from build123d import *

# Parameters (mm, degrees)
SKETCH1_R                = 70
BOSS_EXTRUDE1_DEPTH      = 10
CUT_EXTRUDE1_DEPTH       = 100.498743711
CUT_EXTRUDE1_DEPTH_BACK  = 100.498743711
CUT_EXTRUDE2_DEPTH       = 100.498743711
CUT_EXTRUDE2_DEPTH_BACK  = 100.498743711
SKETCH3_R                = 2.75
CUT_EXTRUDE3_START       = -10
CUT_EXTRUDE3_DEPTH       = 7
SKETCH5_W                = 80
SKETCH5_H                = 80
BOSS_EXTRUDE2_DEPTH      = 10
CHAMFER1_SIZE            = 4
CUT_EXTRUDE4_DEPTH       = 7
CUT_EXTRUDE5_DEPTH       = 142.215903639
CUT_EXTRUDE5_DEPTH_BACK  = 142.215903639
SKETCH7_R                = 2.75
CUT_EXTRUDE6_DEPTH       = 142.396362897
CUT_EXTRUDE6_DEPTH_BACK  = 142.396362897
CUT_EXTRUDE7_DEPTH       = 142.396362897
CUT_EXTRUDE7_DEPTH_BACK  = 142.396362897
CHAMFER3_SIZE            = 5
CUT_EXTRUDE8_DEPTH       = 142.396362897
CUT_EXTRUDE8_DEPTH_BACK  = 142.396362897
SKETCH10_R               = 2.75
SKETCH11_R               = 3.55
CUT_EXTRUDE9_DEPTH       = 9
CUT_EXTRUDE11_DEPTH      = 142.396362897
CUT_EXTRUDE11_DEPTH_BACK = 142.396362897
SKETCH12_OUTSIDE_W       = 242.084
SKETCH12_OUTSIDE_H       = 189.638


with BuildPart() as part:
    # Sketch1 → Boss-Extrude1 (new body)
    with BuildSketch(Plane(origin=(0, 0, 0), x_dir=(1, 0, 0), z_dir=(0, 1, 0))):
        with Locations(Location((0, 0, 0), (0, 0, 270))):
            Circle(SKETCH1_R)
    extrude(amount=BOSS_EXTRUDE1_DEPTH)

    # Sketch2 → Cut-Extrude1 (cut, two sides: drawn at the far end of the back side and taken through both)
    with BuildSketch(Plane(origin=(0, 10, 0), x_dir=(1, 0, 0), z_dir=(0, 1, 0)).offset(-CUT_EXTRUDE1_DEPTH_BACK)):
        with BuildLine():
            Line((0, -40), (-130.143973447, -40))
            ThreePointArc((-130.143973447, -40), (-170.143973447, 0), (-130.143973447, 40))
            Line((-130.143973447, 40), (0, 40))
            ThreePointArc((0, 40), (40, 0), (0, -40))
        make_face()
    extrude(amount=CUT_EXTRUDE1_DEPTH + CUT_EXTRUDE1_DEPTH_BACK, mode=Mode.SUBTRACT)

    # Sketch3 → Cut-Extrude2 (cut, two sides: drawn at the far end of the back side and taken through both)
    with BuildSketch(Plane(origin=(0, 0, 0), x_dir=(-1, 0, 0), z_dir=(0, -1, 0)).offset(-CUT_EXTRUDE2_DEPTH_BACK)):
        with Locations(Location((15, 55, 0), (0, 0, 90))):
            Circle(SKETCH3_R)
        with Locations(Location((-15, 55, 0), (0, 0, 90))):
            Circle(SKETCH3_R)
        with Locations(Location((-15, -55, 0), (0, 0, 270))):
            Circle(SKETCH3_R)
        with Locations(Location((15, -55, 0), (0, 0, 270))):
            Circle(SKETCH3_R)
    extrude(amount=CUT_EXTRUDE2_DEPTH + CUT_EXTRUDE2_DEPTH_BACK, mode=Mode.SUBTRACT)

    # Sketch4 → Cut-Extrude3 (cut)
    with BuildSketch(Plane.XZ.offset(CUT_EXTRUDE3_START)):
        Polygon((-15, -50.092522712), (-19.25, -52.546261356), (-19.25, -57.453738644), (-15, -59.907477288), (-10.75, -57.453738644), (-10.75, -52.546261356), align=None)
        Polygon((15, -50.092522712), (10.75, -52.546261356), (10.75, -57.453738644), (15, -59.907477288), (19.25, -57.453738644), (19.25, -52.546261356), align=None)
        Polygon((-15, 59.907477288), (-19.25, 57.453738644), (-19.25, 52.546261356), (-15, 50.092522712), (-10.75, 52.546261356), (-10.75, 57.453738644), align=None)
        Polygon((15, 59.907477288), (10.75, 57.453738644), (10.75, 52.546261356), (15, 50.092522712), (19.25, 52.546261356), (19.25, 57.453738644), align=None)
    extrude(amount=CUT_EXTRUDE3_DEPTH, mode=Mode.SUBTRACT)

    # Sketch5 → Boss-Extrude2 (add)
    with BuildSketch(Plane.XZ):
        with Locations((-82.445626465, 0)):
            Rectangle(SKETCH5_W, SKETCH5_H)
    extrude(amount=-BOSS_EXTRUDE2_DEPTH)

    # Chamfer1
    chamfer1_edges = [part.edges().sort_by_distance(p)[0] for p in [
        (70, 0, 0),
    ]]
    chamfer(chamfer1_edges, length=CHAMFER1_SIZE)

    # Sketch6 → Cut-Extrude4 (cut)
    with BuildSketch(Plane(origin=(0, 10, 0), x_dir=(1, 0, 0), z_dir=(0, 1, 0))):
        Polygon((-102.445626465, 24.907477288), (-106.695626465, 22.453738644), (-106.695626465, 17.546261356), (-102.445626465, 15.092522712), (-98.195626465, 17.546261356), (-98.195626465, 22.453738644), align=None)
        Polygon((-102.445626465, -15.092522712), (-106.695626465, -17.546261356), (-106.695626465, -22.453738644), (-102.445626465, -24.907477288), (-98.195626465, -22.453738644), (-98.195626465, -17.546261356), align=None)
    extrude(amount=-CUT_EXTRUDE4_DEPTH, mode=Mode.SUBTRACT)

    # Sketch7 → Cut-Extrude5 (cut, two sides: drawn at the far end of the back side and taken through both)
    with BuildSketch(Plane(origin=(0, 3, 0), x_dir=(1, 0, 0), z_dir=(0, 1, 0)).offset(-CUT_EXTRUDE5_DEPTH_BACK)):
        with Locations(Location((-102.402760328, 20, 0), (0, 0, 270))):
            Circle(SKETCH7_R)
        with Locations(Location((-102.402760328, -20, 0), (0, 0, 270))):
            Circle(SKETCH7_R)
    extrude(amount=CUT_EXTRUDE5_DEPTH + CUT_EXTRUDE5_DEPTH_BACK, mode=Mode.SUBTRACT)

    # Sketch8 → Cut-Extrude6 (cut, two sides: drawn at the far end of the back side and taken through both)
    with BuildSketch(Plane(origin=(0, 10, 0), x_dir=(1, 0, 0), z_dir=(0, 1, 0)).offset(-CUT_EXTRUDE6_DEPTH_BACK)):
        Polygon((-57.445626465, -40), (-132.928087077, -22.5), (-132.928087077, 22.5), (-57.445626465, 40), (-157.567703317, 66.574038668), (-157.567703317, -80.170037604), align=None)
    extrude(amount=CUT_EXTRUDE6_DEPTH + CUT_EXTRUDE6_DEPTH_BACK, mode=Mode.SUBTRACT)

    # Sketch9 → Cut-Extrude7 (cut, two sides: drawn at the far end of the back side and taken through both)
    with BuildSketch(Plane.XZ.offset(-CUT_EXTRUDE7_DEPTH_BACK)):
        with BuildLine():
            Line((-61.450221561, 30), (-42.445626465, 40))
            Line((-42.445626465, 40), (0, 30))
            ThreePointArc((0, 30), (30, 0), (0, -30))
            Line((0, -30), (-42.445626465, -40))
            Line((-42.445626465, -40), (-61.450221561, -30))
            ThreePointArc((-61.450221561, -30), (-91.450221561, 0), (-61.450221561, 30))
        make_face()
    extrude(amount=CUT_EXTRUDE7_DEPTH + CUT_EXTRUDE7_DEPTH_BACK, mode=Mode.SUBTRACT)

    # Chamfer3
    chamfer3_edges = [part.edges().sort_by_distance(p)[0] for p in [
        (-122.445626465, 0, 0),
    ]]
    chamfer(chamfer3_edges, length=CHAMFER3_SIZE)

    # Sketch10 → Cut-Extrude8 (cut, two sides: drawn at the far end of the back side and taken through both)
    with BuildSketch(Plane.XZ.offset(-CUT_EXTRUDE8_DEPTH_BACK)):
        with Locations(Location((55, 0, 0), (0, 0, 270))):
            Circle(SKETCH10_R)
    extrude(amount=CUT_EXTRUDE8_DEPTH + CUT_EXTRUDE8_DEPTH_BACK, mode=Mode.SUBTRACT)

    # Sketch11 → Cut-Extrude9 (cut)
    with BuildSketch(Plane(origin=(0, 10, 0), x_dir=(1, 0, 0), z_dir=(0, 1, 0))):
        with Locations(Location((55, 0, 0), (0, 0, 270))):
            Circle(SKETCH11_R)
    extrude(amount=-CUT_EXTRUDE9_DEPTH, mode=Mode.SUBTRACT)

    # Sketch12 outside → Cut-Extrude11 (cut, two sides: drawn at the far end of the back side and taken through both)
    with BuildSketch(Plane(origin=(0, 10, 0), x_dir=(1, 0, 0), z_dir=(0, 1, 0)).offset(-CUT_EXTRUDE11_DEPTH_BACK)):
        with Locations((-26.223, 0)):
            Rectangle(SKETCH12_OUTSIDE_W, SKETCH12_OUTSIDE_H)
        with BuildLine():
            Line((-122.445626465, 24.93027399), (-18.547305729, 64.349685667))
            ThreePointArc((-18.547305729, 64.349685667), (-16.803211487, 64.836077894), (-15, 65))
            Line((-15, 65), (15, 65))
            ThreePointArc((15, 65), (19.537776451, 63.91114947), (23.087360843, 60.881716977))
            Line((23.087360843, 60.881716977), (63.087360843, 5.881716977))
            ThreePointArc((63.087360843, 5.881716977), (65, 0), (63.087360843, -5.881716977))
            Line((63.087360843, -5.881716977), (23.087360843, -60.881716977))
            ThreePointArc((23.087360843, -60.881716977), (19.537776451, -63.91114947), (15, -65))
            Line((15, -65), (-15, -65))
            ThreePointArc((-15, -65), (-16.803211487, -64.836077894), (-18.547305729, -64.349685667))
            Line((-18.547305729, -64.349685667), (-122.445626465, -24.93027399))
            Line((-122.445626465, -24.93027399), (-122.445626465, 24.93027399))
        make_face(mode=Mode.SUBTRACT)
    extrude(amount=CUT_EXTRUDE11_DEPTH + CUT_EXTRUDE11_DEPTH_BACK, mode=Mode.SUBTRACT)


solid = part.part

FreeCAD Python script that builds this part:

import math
import FreeCAD as App
import Part
import Sketcher
from FreeCAD import Vector
Q = App.Units.Quantity


def edges_at(feature, points):
    """Names of the edges that pass closest to the given points."""
    edges = feature.Shape.Edges
    near = lambda p: min(range(len(edges)), key=lambda i: edges[i].distToShape(Part.Vertex(*p))[0])
    return sorted({f"Edge{near(p) + 1}" for p in points})


def add_polygon(sketch, points):
    """Adds a closed chain of lines whose ends are joined by coincident constraints."""
    first, n = sketch.GeometryCount, len(points)
    for a, b in zip(points, points[1:] + points[:1]):
        sketch.addGeometry(Part.LineSegment(App.Vector(*a, 0), App.Vector(*b, 0)), False)
    for i in range(n):
        sketch.addConstraint(Sketcher.Constraint("Coincident", first + i, 2, first + (i + 1) % n, 1))

doc = App.newDocument("Part")
body = doc.addObject("PartDesign::Body", "Body")

sketch1 = body.newObject("Sketcher::SketchObject", "Sketch")
sketch1.AttachmentSupport = (doc.getObject("XZ_Plane"), [""])
sketch1.MapMode = "FlatFace"
sketch1.addGeometry(Part.Circle(Vector(0, 0, 0), Vector(0, 0, 1), 70), False)
sketch1.addConstraint([
    Sketcher.Constraint("Coincident", 0, 3, -1, 1),
    Sketcher.Constraint("Diameter", 0, Q("140 mm")),
])
pad1 = body.newObject("PartDesign::Pad", "Pad")
pad1.Profile = sketch1
pad1.Length = 10
pad1.Reversed = True

sketch2 = body.newObject("Sketcher::SketchObject", "Sketch001")
sketch2.AttachmentSupport = (doc.getObject("XZ_Plane"), [""])
sketch2.MapMode = "FlatFace"
sketch2.AttachmentOffset = App.Placement(Vector(0, 0, -10), App.Rotation())
sketch2.addGeometry([
    Part.LineSegment(Vector(-130.143973, 40, 0), Vector(0, 40, 0)),
    Part.ArcOfCircle(Part.Circle(Vector(0, 0, 0), Vector(0, 0, 1), 40), math.radians(-90), math.radians(90)),
    Part.LineSegment(Vector(0, -40, 0), Vector(-130.143973, -40, 0)),
    Part.ArcOfCircle(Part.Circle(Vector(-130.143973, 0, 0), Vector(0, 0, 1), 40), math.radians(90), math.radians(270)),
], False)
sketch2.addConstraint([
    Sketcher.Constraint("Tangent", 0, 2, 1, 2),
    Sketcher.Constraint("Tangent", 1, 1, 2, 1),
    Sketcher.Constraint("Tangent", 2, 2, 3, 2),
    Sketcher.Constraint("Tangent", 3, 1, 0, 1),
    Sketcher.Constraint("Horizontal", 0),
    Sketcher.Constraint("Horizontal", 2),
    Sketcher.Constraint("Coincident", 1, 3, -1, 1),
    Sketcher.Constraint("Radius", 1, Q("40 mm")),
    Sketcher.Constraint("DistanceX", 0, 1, 0, 2, Q("130.143973 mm")),
])
pocket1 = body.newObject("PartDesign::Pocket", "Pocket")
pocket1.Profile = sketch2
pocket1.Type = "ThroughAll"
pocket1.Midplane = True

sketch3 = body.newObject("Sketcher::SketchObject", "Sketch002")
sketch3.AttachmentSupport = (doc.getObject("XZ_Plane"), [""])
sketch3.MapMode = "FlatFace"
sketch3.addGeometry([
    Part.Circle(Vector(-15, -55, 0), Vector(0, 0, 1), 2.75),
    Part.Circle(Vector(15, -55, 0), Vector(0, 0, 1), 2.75),
    Part.Circle(Vector(15, 55, 0), Vector(0, 0, 1), 2.75),
    Part.Circle(Vector(-15, 55, 0), Vector(0, 0, 1), 2.75),
], False)
sketch3.addConstraint([
    Sketcher.Constraint("Equal", 0, 1),
    Sketcher.Constraint("Equal", 1, 2),
    Sketcher.Constraint("Equal", 2, 3),
    Sketcher.Constraint("Symmetric", 0, 3, 2, 3, -1, 1),
    Sketcher.Constraint("Symmetric", 1, 3, 3, 3, -1, 1),
    Sketcher.Constraint("Symmetric", 0, 3, 1, 3, -2),
    Sketcher.Constraint("Diameter", 0, Q("5.5 mm")),
    Sketcher.Constraint("DistanceX", 0, 3, -1, 1, Q("15 mm")),
    Sketcher.Constraint("DistanceY", 0, 3, -1, 1, Q("55 mm")),
])
pocket2 = body.newObject("PartDesign::Pocket", "Pocket001")
pocket2.Profile = sketch3
pocket2.Type = "ThroughAll"
pocket2.Midplane = True

sketch4 = body.newObject("Sketcher::SketchObject", "Sketch003")
sketch4.AttachmentSupport = (doc.getObject("XZ_Plane"), [""])
sketch4.MapMode = "FlatFace"
sketch4.AttachmentOffset = App.Placement(Vector(0, 0, -10), App.Rotation())
add_polygon(sketch4, [(-15, -50.092523), (-19.25, -52.546261), (-19.25, -57.453739), (-15, -59.907477), (-10.75, -57.453739), (-10.75, -52.546261)])
add_polygon(sketch4, [(15, -50.092523), (10.75, -52.546261), (10.75, -57.453739), (15, -59.907477), (19.25, -57.453739), (19.25, -52.546261)])
add_polygon(sketch4, [(-15, 59.907477), (-19.25, 57.453739), (-19.25, 52.546261), (-15, 50.092523), (-10.75, 52.546261), (-10.75, 57.453739)])
add_polygon(sketch4, [(15, 59.907477), (10.75, 57.453739), (10.75, 52.546261), (15, 50.092523), (19.25, 52.546261), (19.25, 57.453739)])
sketch4.addConstraint([
    Sketcher.Constraint("Vertical", 1),
    Sketcher.Constraint("Vertical", 4),
    Sketcher.Constraint("Vertical", 7),
    Sketcher.Constraint("Vertical", 10),
    Sketcher.Constraint("Vertical", 13),
    Sketcher.Constraint("Vertical", 16),
    Sketcher.Constraint("Vertical", 19),
    Sketcher.Constraint("Vertical", 22),
    Sketcher.Constraint("Symmetric", 9, 2, 12, 2, -1, 1),
    Sketcher.Constraint("Symmetric", 11, 2, 14, 2, -1, 1),
    Sketcher.Constraint("Symmetric", 6, 2, 15, 2, -1, 1),
    Sketcher.Constraint("Symmetric", 8, 2, 17, 2, -1, 1),
    Sketcher.Constraint("Symmetric", 3, 2, 18, 2, -1, 1),
    Sketcher.Constraint("Symmetric", 5, 2, 20, 2, -1, 1),
    Sketcher.Constraint("Symmetric", 0, 2, 21, 2, -1, 1),
    Sketcher.Constraint("Symmetric", 2, 2, 23, 2, -1, 1),
    Sketcher.Constraint("Symmetric", 4, 2, 6, 2, -2),
    Sketcher.Constraint("Symmetric", 2, 2, 8, 2, -2),
    Sketcher.Constraint("Symmetric", 1, 2, 9, 2, -2),
    Sketcher.Constraint("Symmetric", 5, 2, 11, 2, -2),
    Sketcher.Constraint("Parallel", 0, 3),
    Sketcher.Constraint("Parallel", 2, 5),
    Sketcher.Constraint("Parallel", 3, 6),
    Sketcher.Constraint("Parallel", 5, 8),
    Sketcher.Constraint("Parallel", 8, 11),
    Sketcher.Constraint("Parallel", 11, 14),
    Sketcher.Constraint("Parallel", 14, 17),
    Sketcher.Constraint("Parallel", 17, 20),
    Sketcher.Constraint("Parallel", 20, 23),
    Sketcher.Constraint("Horizontal", 1, 2, 3, 2),
    Sketcher.Constraint("Horizontal", 0, 2, 4, 2),
    Sketcher.Constraint("Angle", 0, Q("-150 deg")),
    Sketcher.Constraint("DistanceX", 2, 2, -1, 1, Q("15 mm")),
    Sketcher.Constraint("DistanceY", 0, 2, 12, 2, Q("110 mm")),
    Sketcher.Constraint("DistanceX", 1, 2, 3, 2, Q("8.5 mm")),
    Sketcher.Constraint("DistanceY", 1, 2, 1, 1, Q("4.907477 mm")),
])
pocket3 = body.newObject("PartDesign::Pocket", "Pocket002")
pocket3.Profile = sketch4
pocket3.Length = 7
pocket3.Reversed = True

sketch5 = body.newObject("Sketcher::SketchObject", "Sketch004")
sketch5.AttachmentSupport = (doc.getObject("XZ_Plane"), [""])
sketch5.MapMode = "FlatFace"
add_polygon(sketch5, [(-122.445626, 40), (-122.445626, -40), (-42.445626, -40), (-42.445626, 40)])
sketch5.addConstraint([
    Sketcher.Constraint("Vertical", 0),
    Sketcher.Constraint("Horizontal", 1),
    Sketcher.Constraint("Vertical", 2),
    Sketcher.Constraint("Horizontal", 3),
    Sketcher.Constraint("Equal", 3, 0),
    Sketcher.Constraint("DistanceX", 1, 1, 1, 2, Q("80 mm")),
    Sketcher.Constraint("DistanceY", 0, 2, -1, 1, Q("40 mm")),
    Sketcher.Constraint("DistanceX", 0, 2, -1, 1, Q("122.445626 mm")),
])
pad2 = body.newObject("PartDesign::Pad", "Pad001")
pad2.Profile = sketch5
pad2.Length = 10
pad2.Reversed = True
doc.recompute()

chamfer = body.newObject("PartDesign::Chamfer", "Chamfer")
chamfer.Base = (pad2, edges_at(pad2, [(70, 0, 0)]))
chamfer.Size = 4

sketch6 = body.newObject("Sketcher::SketchObject", "Sketch005")
sketch6.AttachmentSupport = (doc.getObject("XZ_Plane"), [""])
sketch6.MapMode = "FlatFace"
sketch6.AttachmentOffset = App.Placement(Vector(0, 0, -10), App.Rotation())
add_polygon(sketch6, [(-102.445626, -24.907477), (-106.695626, -22.453739), (-106.695626, -17.546261), (-102.445626, -15.092523), (-98.195626, -17.546261), (-98.195626, -22.453739)])
add_polygon(sketch6, [(-102.445626, 15.092523), (-106.695626, 17.546261), (-106.695626, 22.453739), (-102.445626, 24.907477), (-98.195626, 22.453739), (-98.195626, 17.546261)])
sketch6.addConstraint([
    Sketcher.Constraint("Vertical", 1),
    Sketcher.Constraint("Vertical", 4),
    Sketcher.Constraint("Vertical", 7),
    Sketcher.Constraint("Vertical", 10),
    Sketcher.Constraint("Symmetric", 1, 2, 6, 2, -1),
    Sketcher.Constraint("Symmetric", 5, 2, 8, 2, -1),
    Sketcher.Constraint("Symmetric", 4, 2, 9, 2, -1),
    Sketcher.Constraint("Symmetric", 2, 2, 11, 2, -1),
    Sketcher.Constraint("Parallel", 0, 3),
    Sketcher.Constraint("Parallel", 2, 5),
    Sketcher.Constraint("Parallel", 3, 6),
    Sketcher.Constraint("Parallel", 5, 8),
    Sketcher.Constraint("Parallel", 8, 11),
    Sketcher.Constraint("Horizontal", 1, 2, 3, 2),
    Sketcher.Constraint("Horizontal", 0, 2, 4, 2),
    Sketcher.Constraint("Angle", 0, Q("150 deg")),
    Sketcher.Constraint("DistanceY", 0, 2, 6, 2, Q("40 mm")),
    Sketcher.Constraint("DistanceX", 1, 2, 3, 2, Q("8.5 mm")),
    Sketcher.Constraint("DistanceY", 1, 1, 1, 2, Q("4.907477 mm")),
    Sketcher.Constraint("DistanceX", 0, 2, -1, 1, Q("106.695626 mm")),
])
pocket4 = body.newObject("PartDesign::Pocket", "Pocket003")
pocket4.Profile = sketch6
pocket4.Length = 7
pocket4.Reversed = True

sketch7 = body.newObject("Sketcher::SketchObject", "Sketch006")
sketch7.AttachmentSupport = (doc.getObject("XZ_Plane"), [""])
sketch7.MapMode = "FlatFace"
sketch7.AttachmentOffset = App.Placement(Vector(0, 0, -3), App.Rotation())
sketch7.addGeometry([
    Part.Circle(Vector(-102.40276, -20, 0), Vector(0, 0, 1), 2.75),
    Part.Circle(Vector(-102.40276, 20, 0), Vector(0, 0, 1), 2.75),
], False)
sketch7.addConstraint([
    Sketcher.Constraint("Equal", 0, 1),
    Sketcher.Constraint("Symmetric", 0, 3, 1, 3, -1),
    Sketcher.Constraint("Diameter", 0, Q("5.5 mm")),
    Sketcher.Constraint("DistanceY", 0, 3, -1, 1, Q("20 mm")),
    Sketcher.Constraint("DistanceX", 0, 3, -1, 1, Q("102.40276 mm")),
])
pocket5 = body.newObject("PartDesign::Pocket", "Pocket004")
pocket5.Profile = sketch7
pocket5.Type = "ThroughAll"
pocket5.Midplane = True

sketch8 = body.newObject("Sketcher::SketchObject", "Sketch007")
sketch8.AttachmentSupport = (doc.getObject("XZ_Plane"), [""])
sketch8.MapMode = "FlatFace"
sketch8.AttachmentOffset = App.Placement(Vector(0, 0, -10), App.Rotation())
add_polygon(sketch8, [(-57.445626, 40), (-132.928087, 22.5), (-132.928087, -22.5), (-57.445626, -40), (-157.567703, -66.574039), (-157.567703, 80.170038)])
sketch8.addConstraint([
    Sketcher.Constraint("Vertical", 1),
    Sketcher.Constraint("Vertical", 4),
    Sketcher.Constraint("Symmetric", 2, 2, 5, 2, -1),
    Sketcher.Constraint("Equal", 0, 2),
    Sketcher.Constraint("DistanceY", 1, 2, 1, 1, Q("45 mm")),
    Sketcher.Constraint("DistanceY", 2, 2, -1, 1, Q("40 mm")),
    Sketcher.Constraint("Distance", 5, Q("107.879851 mm")),
    Sketcher.Constraint("DistanceY", 4, 1, 4, 2, Q("146.744076 mm")),
    Sketcher.Constraint("DistanceY", 3, 2, -1, 1, Q("66.574039 mm")),
    Sketcher.Constraint("DistanceX", 1, 2, 2, 2, Q("75.482461 mm")),
    Sketcher.Constraint("DistanceX", 0, 2, -1, 1, Q("132.928087 mm")),
])
pocket6 = body.newObject("PartDesign::Pocket", "Pocket005")
pocket6.Profile = sketch8
pocket6.Type = "ThroughAll"
pocket6.Midplane = True

sketch9 = body.newObject("Sketcher::SketchObject", "Sketch008")
sketch9.AttachmentSupport = (doc.getObject("XZ_Plane"), [""])
sketch9.MapMode = "FlatFace"
sketch9.addGeometry([
    Part.LineSegment(Vector(-42.445626, 40, 0), Vector(-61.450222, 30, 0)),
    Part.ArcOfCircle(Part.Circle(Vector(-61.450222, 0, 0), Vector(0, 0, 1), 30), math.radians(90), math.radians(270)),
    Part.LineSegment(Vector(-61.450222, -30, 0), Vector(-42.445626, -40, 0)),
    Part.LineSegment(Vector(-42.445626, -40, 0), Vector(0, -30, 0)),
    Part.ArcOfCircle(Part.Circle(Vector(0, 0, 0), Vector(0, 0, 1), 30), math.radians(-90), math.radians(90)),
    Part.LineSegment(Vector(0, 30, 0), Vector(-42.445626, 40, 0)),
], False)
sketch9.addConstraint([
    Sketcher.Constraint("Coincident", 0, 2, 1, 1),
    Sketcher.Constraint("Coincident", 1, 2, 2, 1),
    Sketcher.Constraint("Coincident", 2, 2, 3, 1),
    Sketcher.Constraint("Coincident", 3, 2, 4, 1),
    Sketcher.Constraint("Coincident", 4, 2, 5, 1),
    Sketcher.Constraint("Coincident", 5, 2, 0, 1),
    Sketcher.Constraint("Coincident", 4, 3, -1, 1),
    Sketcher.Constraint("Equal", 1, 4),
    Sketcher.Constraint("Symmetric", 0, 2, 1, 2, -1),
    Sketcher.Constraint("Symmetric", 2, 2, 5, 2, -1),
    Sketcher.Constraint("PointOnObject", 3, 2, -2),
    Sketcher.Constraint("PointOnObject", 4, 2, -2),
    Sketcher.Constraint("Vertical", 1, 3, 0, 2),
    Sketcher.Constraint("Radius", 1, Q("30 mm")),
    Sketcher.Constraint("DistanceY", 2, 2, -1, 1, Q("40 mm")),
    Sketcher.Constraint("DistanceX", 1, 3, -1, 1, Q("61.450222 mm")),
    Sketcher.Constraint("Distance", 0, Q("21.474977 mm")),
])
pocket7 = body.newObject("PartDesign::Pocket", "Pocket006")
pocket7.Profile = sketch9
pocket7.Type = "ThroughAll"
pocket7.Midplane = True
doc.recompute()

chamfer2 = body.newObject("PartDesign::Chamfer", "Chamfer001")
chamfer2.Base = (pocket7, edges_at(pocket7, [(-122.446, 0, 0)]))
chamfer2.Size = 5

sketch10 = body.newObject("Sketcher::SketchObject", "Sketch009")
sketch10.AttachmentSupport = (doc.getObject("XZ_Plane"), [""])
sketch10.MapMode = "FlatFace"
sketch10.addGeometry(Part.Circle(Vector(55, 0, 0), Vector(0, 0, 1), 2.75), False)
sketch10.addConstraint([
    Sketcher.Constraint("PointOnObject", 0, 3, -1),
    Sketcher.Constraint("Diameter", 0, Q("5.5 mm")),
    Sketcher.Constraint("DistanceX", -1, 1, 0, 3, Q("55 mm")),
])
pocket8 = body.newObject("PartDesign::Pocket", "Pocket007")
pocket8.Profile = sketch10
pocket8.Type = "ThroughAll"
pocket8.Midplane = True

sketch11 = body.newObject("Sketcher::SketchObject", "Sketch010")
sketch11.AttachmentSupport = (doc.getObject("XZ_Plane"), [""])
sketch11.MapMode = "FlatFace"
sketch11.AttachmentOffset = App.Placement(Vector(0, 0, -10), App.Rotation())
sketch11.addGeometry(Part.Circle(Vector(55, 0, 0), Vector(0, 0, 1), 3.55), False)
sketch11.addConstraint([
    Sketcher.Constraint("PointOnObject", 0, 3, -1),
    Sketcher.Constraint("Diameter", 0, Q("7.1 mm")),
    Sketcher.Constraint("DistanceX", -1, 1, 0, 3, Q("55 mm")),
])
pocket9 = body.newObject("PartDesign::Pocket", "Pocket008")
pocket9.Profile = sketch11
pocket9.Length = 9
pocket9.Reversed = True

sketch12 = body.newObject("Sketcher::SketchObject", "Sketch011")
sketch12.AttachmentSupport = (doc.getObject("XZ_Plane"), [""])
sketch12.MapMode = "FlatFace"
sketch12.AttachmentOffset = App.Placement(Vector(0, 0, -10), App.Rotation())
add_polygon(sketch12, [(-147.265, -94.819), (-147.265, 94.819), (94.819, 94.819), (94.819, -94.819)])
sketch12.addGeometry(Part.LineSegment(Vector(-122.445626, 24.930274, 0), Vector(-122.445626, -24.930274, 0)), False)
sketch12.addGeometry(Part.LineSegment(Vector(-122.445626, -24.930274, 0), Vector(-18.547306, -64.349686, 0)), False)
sketch12.addGeometry(Part.ArcOfCircle(Part.Circle(Vector(-15, -55, 0), Vector(0, 0, 1), 10), math.radians(-110.776933), math.radians(-90)), False)
sketch12.addGeometry(Part.LineSegment(Vector(-15, -65, 0), Vector(15, -65, 0)), False)
sketch12.addGeometry(Part.ArcOfCircle(Part.Circle(Vector(15, -55, 0), Vector(0, 0, 1), 10), math.radians(-90), math.radians(-36.027373)), False)
sketch12.addGeometry(Part.LineSegment(Vector(23.087361, -60.881717, 0), Vector(63.087361, -5.881717, 0)), False)
sketch12.addGeometry(Part.ArcOfCircle(Part.Circle(Vector(55, 0, 0), Vector(0, 0, 1), 10), math.radians(-36.027373), math.radians(36.027373)), False)
sketch12.addGeometry(Part.LineSegment(Vector(63.087361, 5.881717, 0), Vector(23.087361, 60.881717, 0)), False)
sketch12.addGeometry(Part.ArcOfCircle(Part.Circle(Vector(15, 55, 0), Vector(0, 0, 1), 10), math.radians(36.027373), math.radians(90)), False)
sketch12.addGeometry(Part.LineSegment(Vector(15, 65, 0), Vector(-15, 65, 0)), False)
sketch12.addGeometry(Part.ArcOfCircle(Part.Circle(Vector(-15, 55, 0), Vector(0, 0, 1), 10), math.radians(90), math.radians(110.776933)), False)
sketch12.addGeometry(Part.LineSegment(Vector(-18.547306, 64.349686, 0), Vector(-122.445626, 24.930274, 0)), False)
sketch12.addConstraint([
    Sketcher.Constraint("Coincident", 4, 2, 5, 1),
    Sketcher.Constraint("Tangent", 5, 2, 6, 1),
    Sketcher.Constraint("Tangent", 6, 2, 7, 1),
    Sketcher.Constraint("Tangent", 7, 2, 8, 1),
    Sketcher.Constraint("Tangent", 8, 2, 9, 1),
    Sketcher.Constraint("Tangent", 9, 2, 10, 1),
    Sketcher.Constraint("Tangent", 10, 2, 11, 1),
    Sketcher.Constraint("Tangent", 11, 2, 12, 1),
    Sketcher.Constraint("Tangent", 12, 2, 13, 1),
    Sketcher.Constraint("Tangent", 13, 2, 14, 1),
    Sketcher.Constraint("Tangent", 14, 2, 15, 1),
    Sketcher.Constraint("Coincident", 15, 2, 4, 1),
    Sketcher.Constraint("Vertical", 0),
    Sketcher.Constraint("Horizontal", 1),
    Sketcher.Constraint("Vertical", 2),
    Sketcher.Constraint("Horizontal", 3),
    Sketcher.Constraint("Vertical", 4),
    Sketcher.Constraint("Horizontal", 7),
    Sketcher.Constraint("Horizontal", 13),
    Sketcher.Constraint("Equal", 6, 8),
    Sketcher.Constraint("Equal", 8, 10),
    Sketcher.Constraint("Equal", 10, 12),
    Sketcher.Constraint("Equal", 12, 14),
    Sketcher.Constraint("Symmetric", 6, 3, 12, 3, -1, 1),
    Sketcher.Constraint("Symmetric", 9, 2, 10, 2, -1),
    Sketcher.Constraint("Symmetric", 5, 2, 14, 2, -1),
    Sketcher.Constraint("Radius", 6, Q("10 mm")),
    Sketcher.Constraint("DistanceX", 7, 1, 7, 2, Q("30 mm")),
    Sketcher.Constraint("DistanceY", 6, 3, -1, 1, Q("55 mm")),
    Sketcher.Constraint("DistanceX", -1, 1, 10, 3, Q("55 mm")),
    Sketcher.Constraint("DistanceX", 1, 1, 1, 2, Q("242.084 mm")),
    Sketcher.Constraint("DistanceY", 0, 1, 0, 2, Q("189.638 mm")),
    Sketcher.Constraint("DistanceX", 0, 2, -1, 1, Q("147.265 mm")),
    Sketcher.Constraint("DistanceY", -1, 1, 0, 2, Q("94.819 mm")),
    Sketcher.Constraint("DistanceY", 4, 2, 4, 1, Q("49.860548 mm")),
    Sketcher.Constraint("DistanceX", 4, 2, 5, 2, Q("103.898321 mm")),
])
pocket10 = body.newObject("PartDesign::Pocket", "Pocket009")
pocket10.Profile = sketch12
pocket10.Type = "ThroughAll"
pocket10.Midplane = True

doc.recompute()
